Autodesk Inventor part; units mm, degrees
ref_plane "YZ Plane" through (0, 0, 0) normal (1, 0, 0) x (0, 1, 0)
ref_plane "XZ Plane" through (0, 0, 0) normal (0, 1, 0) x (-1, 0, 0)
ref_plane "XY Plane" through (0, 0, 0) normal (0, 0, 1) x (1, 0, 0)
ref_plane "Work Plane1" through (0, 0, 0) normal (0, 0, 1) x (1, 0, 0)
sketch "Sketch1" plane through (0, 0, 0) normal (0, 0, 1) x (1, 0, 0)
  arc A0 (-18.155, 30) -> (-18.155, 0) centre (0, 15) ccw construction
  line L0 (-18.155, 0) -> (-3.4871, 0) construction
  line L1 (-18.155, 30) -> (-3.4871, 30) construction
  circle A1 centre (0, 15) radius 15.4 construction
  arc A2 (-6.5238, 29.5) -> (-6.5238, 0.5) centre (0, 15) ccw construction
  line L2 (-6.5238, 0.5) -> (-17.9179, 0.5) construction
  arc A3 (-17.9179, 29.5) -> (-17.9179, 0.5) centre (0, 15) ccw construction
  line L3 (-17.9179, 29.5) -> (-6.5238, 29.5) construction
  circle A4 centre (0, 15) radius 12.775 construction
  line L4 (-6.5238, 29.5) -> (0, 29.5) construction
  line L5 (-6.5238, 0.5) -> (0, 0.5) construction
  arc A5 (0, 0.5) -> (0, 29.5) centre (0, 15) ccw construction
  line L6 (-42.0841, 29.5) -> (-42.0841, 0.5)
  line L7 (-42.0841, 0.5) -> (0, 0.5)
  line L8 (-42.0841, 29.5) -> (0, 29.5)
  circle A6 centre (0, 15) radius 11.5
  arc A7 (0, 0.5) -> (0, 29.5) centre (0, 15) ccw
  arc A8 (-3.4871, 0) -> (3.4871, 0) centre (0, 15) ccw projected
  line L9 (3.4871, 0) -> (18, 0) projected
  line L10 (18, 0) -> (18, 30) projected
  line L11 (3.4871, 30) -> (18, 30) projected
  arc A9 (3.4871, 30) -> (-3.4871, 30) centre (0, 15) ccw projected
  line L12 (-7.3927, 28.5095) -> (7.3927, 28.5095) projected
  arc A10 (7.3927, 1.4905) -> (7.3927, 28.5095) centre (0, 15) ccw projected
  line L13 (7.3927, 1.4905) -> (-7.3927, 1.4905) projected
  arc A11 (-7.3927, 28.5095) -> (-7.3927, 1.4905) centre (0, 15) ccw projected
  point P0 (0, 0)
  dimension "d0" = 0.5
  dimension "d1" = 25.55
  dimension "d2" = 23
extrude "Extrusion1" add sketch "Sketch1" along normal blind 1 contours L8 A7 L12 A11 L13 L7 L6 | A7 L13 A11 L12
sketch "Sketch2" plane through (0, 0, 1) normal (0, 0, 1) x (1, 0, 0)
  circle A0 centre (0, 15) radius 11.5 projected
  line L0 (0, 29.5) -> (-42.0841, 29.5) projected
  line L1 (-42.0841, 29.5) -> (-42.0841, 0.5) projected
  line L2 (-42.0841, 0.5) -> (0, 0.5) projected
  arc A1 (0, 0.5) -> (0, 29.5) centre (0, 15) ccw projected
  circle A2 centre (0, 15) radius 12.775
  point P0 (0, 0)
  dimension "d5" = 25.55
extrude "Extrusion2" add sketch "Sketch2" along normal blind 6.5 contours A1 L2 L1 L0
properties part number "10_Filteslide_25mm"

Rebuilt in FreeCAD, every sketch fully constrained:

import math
import FreeCAD as App
import Part
import Sketcher
Q = App.Units.Quantity

doc = App.newDocument("Part")
body = doc.addObject("PartDesign::Body", "Body")

sketch1 = body.newObject("Sketcher::SketchObject", "Sketch")
sketch1.AttachmentSupport = (doc.getObject("XY_Plane"), [""])
sketch1.MapMode = "FlatFace"
sketch1.addGeometry(Part.LineSegment(App.Vector(0, 30, 0), App.Vector(-42, 30, 0)), False)
sketch1.addGeometry(Part.LineSegment(App.Vector(-42, 30, 0), App.Vector(-42, 0, 0)), False)
sketch1.addGeometry(Part.LineSegment(App.Vector(-42, 0, 0), App.Vector(0, 0, 0)), False)
sketch1.addGeometry(Part.ArcOfCircle(Part.Circle(App.Vector(0, 15, 0), App.Vector(0, 0, 1), 14), math.radians(-90), math.radians(90)), False)
sketch1.addGeometry(Part.Circle(App.Vector(0, 15, 0), App.Vector(0, 0, 1), 12), False)
sketch1.addConstraint(Sketcher.Constraint("Coincident", 0, 2, 1, 1))
sketch1.addConstraint(Sketcher.Constraint("Coincident", 1, 2, 2, 1))
sketch1.addConstraint(Sketcher.Constraint("Tangent", 2, 2, 3, 1))
sketch1.addConstraint(Sketcher.Constraint("Tangent", 3, 2, 0, 1))
sketch1.addConstraint(Sketcher.Constraint("Horizontal", 0))
sketch1.addConstraint(Sketcher.Constraint("Vertical", 1))
sketch1.addConstraint(Sketcher.Constraint("Horizontal", 2))
sketch1.addConstraint(Sketcher.Constraint("Coincident", 4, 3, 3, 3))
sketch1.addConstraint(Sketcher.Constraint("PointOnObject", 3, 3, -2))
sketch1.addConstraint(Sketcher.Constraint("Diameter", 4, Q("23 mm")))
sketch1.addConstraint(Sketcher.Constraint("DistanceY", -1, 1, 1, 2, Q("0.5 mm")))
sketch1.addConstraint(Sketcher.Constraint("Radius", 3, Q("14.5 mm")))
sketch1.addConstraint(Sketcher.Constraint("DistanceX", 0, 2, 0, 1, Q("42.084 mm")))
pad1 = body.newObject("PartDesign::Pad", "Pad")
pad1.Profile = sketch1
pad1.Length = 1

sketch2 = body.newObject("Sketcher::SketchObject", "Sketch001")
sketch2.AttachmentSupport = (doc.getObject("XY_Plane"), [""])
sketch2.MapMode = "FlatFace"
sketch2.AttachmentOffset = App.Placement(App.Vector(0, 0, 1), App.Rotation())
sketch2.addGeometry(Part.ArcOfCircle(Part.Circle(App.Vector(0, 15, 0), App.Vector(0, 0, 1), 14), math.radians(-90), math.radians(90)), False)
sketch2.addGeometry(Part.LineSegment(App.Vector(0, 30, 0), App.Vector(-42, 30, 0)), False)
sketch2.addGeometry(Part.LineSegment(App.Vector(-42, 30, 0), App.Vector(-42, 0, 0)), False)
sketch2.addGeometry(Part.LineSegment(App.Vector(-42, 0, 0), App.Vector(0, 0, 0)), False)
sketch2.addGeometry(Part.Circle(App.Vector(0, 15, 0), App.Vector(0, 0, 1), 13), False)
sketch2.addConstraint(Sketcher.Constraint("Tangent", 0, 2, 1, 1))
sketch2.addConstraint(Sketcher.Constraint("Coincident", 1, 2, 2, 1))
sketch2.addConstraint(Sketcher.Constraint("Coincident", 2, 2, 3, 1))
sketch2.addConstraint(Sketcher.Constraint("Tangent", 3, 2, 0, 1))
sketch2.addConstraint(Sketcher.Constraint("Horizontal", 1))
sketch2.addConstraint(Sketcher.Constraint("Vertical", 2))
sketch2.addConstraint(Sketcher.Constraint("Horizontal", 3))
sketch2.addConstraint(Sketcher.Constraint("Coincident", 4, 3, 0, 3))
sketch2.addConstraint(Sketcher.Constraint("PointOnObject", 0, 3, -2))
sketch2.addConstraint(Sketcher.Constraint("Diameter", 4, Q("25.55 mm")))
sketch2.addConstraint(Sketcher.Constraint("Radius", 0, Q("14.5 mm")))
sketch2.addConstraint(Sketcher.Constraint("DistanceY", -1, 1, 0, 3, Q("15 mm")))
sketch2.addConstraint(Sketcher.Constraint("DistanceX", 1, 2, 1, 1, Q("42.084 mm")))
pad2 = body.newObject("PartDesign::Pad", "Pad001")
pad2.Profile = sketch2
pad2.Length = 6.5

doc.recompute()
